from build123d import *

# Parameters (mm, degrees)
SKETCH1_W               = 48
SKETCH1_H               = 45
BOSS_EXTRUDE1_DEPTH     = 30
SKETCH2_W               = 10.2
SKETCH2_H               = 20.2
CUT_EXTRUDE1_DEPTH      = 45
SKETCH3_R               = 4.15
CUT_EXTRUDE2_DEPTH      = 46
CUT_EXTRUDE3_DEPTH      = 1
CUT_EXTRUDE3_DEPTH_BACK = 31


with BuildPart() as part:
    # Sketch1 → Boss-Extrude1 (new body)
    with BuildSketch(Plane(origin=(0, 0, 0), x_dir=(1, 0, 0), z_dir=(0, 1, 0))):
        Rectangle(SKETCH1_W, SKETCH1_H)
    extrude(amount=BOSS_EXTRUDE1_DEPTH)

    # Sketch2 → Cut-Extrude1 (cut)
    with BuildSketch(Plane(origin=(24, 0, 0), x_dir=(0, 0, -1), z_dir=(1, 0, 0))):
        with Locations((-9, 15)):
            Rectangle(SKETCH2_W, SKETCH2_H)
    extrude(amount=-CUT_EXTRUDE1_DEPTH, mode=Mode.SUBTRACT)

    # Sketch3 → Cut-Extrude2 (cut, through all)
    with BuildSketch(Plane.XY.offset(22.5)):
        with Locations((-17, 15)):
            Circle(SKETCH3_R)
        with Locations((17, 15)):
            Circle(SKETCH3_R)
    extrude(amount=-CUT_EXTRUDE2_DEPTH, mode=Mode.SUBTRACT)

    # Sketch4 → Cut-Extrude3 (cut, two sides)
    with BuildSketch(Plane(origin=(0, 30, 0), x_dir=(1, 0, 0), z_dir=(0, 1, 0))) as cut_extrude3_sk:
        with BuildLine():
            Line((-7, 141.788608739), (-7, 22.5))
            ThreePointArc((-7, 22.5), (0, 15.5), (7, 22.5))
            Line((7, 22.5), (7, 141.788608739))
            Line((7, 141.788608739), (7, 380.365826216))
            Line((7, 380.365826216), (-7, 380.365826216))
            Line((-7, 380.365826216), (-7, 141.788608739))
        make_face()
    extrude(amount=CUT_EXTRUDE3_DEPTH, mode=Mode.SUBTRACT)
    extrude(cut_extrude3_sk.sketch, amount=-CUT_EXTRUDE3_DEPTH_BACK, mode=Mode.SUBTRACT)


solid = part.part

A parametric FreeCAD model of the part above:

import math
import FreeCAD as App
import Part
import Sketcher


def add_polygon(sketch, points):
    """Adds a closed chain of lines whose ends are joined by coincident constraints."""
    first, n = sketch.GeometryCount, len(points)
    for a, b in zip(points, points[1:] + points[:1]):
        sketch.addGeometry(Part.LineSegment(App.Vector(*a, 0), App.Vector(*b, 0)), False)
    for i in range(n):
        sketch.addConstraint(Sketcher.Constraint("Coincident", first + i, 2, first + (i + 1) % n, 1))

doc = App.newDocument("Part")
params = doc.addObject("Spreadsheet::Sheet", "Params")
for row, (alias, value) in enumerate([
    ("sketch1_width", "48 mm"),
    ("sketch1_height", "45 mm"),
    ("pad1_length", "30 mm"),
    ("sketch2_width", "20.2 mm"),
    ("sketch2_height", "10.2 mm"),
    ("pocket1_length", "45 mm"),
    ("sketch3_diameter", "8.3 mm"),
    ("sketch4_radius", "7 mm"),
], start=1):
    params.set(f"A{row}", alias)
    params.set(f"B{row}", "=" + value)
    params.setAlias(f"B{row}", alias)

body = doc.addObject("PartDesign::Body", "Body")

sketch1 = body.newObject("Sketcher::SketchObject", "Sketch")
sketch1.AttachmentSupport = (doc.getObject("XZ_Plane"), [""])
sketch1.MapMode = "FlatFace"
add_polygon(sketch1, [(-24, -22), (-24, 22), (24, 22), (24, -22)])
sketch1.addConstraint([
    Sketcher.Constraint("Vertical", 0),
    Sketcher.Constraint("Horizontal", 1),
    Sketcher.Constraint("Vertical", 2),
    Sketcher.Constraint("Horizontal", 3),
    Sketcher.Constraint("Symmetric", 0, 2, 2, 2, -1, 1),
    Sketcher.Constraint("DistanceX", 1, 1, 1, 2, 48.0),
    Sketcher.Constraint("DistanceY", 0, 1, 0, 2, 45.0),
])
sketch1.setExpression("Constraints[9]", "Params.sketch1_width")
sketch1.setExpression("Constraints[10]", "Params.sketch1_height")
pad1 = body.newObject("PartDesign::Pad", "Pad")
pad1.Profile = sketch1
pad1.setExpression("Length", "Params.pad1_length")
pad1.Reversed = True

sketch2 = body.newObject("Sketcher::SketchObject", "Sketch001")
sketch2.AttachmentSupport = (doc.getObject("YZ_Plane"), [""])
sketch2.MapMode = "FlatFace"
sketch2.AttachmentOffset = App.Placement(App.Vector(0, 0, 24), App.Rotation())
add_polygon(sketch2, [(25, 14), (5, 14), (5, 4), (25, 4)])
sketch2.addConstraint([
    Sketcher.Constraint("Horizontal", 0),
    Sketcher.Constraint("Vertical", 1),
    Sketcher.Constraint("Horizontal", 2),
    Sketcher.Constraint("Vertical", 3),
    Sketcher.Constraint("DistanceX", 0, 2, 0, 1, 20.2),
    Sketcher.Constraint("DistanceY", 1, 2, 1, 1, 10.2),
    Sketcher.Constraint("DistanceX", -1, 1, 0, 2, 4.9),
    Sketcher.Constraint("DistanceY", -1, 1, 0, 2, 14.1),
])
sketch2.setExpression("Constraints[8]", "Params.sketch2_width")
sketch2.setExpression("Constraints[9]", "Params.sketch2_height")
pocket1 = body.newObject("PartDesign::Pocket", "Pocket")
pocket1.Profile = sketch2
pocket1.setExpression("Length", "Params.pocket1_length")

sketch3 = body.newObject("Sketcher::SketchObject", "Sketch002")
sketch3.AttachmentSupport = (doc.getObject("XY_Plane"), [""])
sketch3.MapMode = "FlatFace"
sketch3.AttachmentOffset = App.Placement(App.Vector(0, 0, 22.5), App.Rotation())
sketch3.addGeometry([
    Part.Circle(App.Vector(-17, 15, 0), App.Vector(0, 0, 1), 4.2),
    Part.Circle(App.Vector(17, 15, 0), App.Vector(0, 0, 1), 4.2),
], False)
sketch3.addConstraint([
    Sketcher.Constraint("Equal", 0, 1),
    Sketcher.Constraint("Symmetric", 0, 3, 1, 3, -2),
    Sketcher.Constraint("Diameter", 0, 8.3),
    Sketcher.Constraint("DistanceX", 0, 3, -1, 1, 17.0),
    Sketcher.Constraint("DistanceY", -1, 1, 0, 3, 15.0),
])
sketch3.setExpression("Constraints[2]", "Params.sketch3_diameter")
pocket2 = body.newObject("PartDesign::Pocket", "Pocket001")
pocket2.Profile = sketch3
pocket2.Type = "ThroughAll"

sketch4 = body.newObject("Sketcher::SketchObject", "Sketch003")
sketch4.AttachmentSupport = (doc.getObject("XZ_Plane"), [""])
sketch4.MapMode = "FlatFace"
sketch4.AttachmentOffset = App.Placement(App.Vector(0, 0, -30), App.Rotation())
sketch4.addGeometry([
    Part.ArcOfCircle(Part.Circle(App.Vector(0, -22, 0), App.Vector(0, 0, 1), 7), math.radians(0), math.radians(180)),
    Part.LineSegment(App.Vector(7, -22, 0), App.Vector(7, -380, 0)),
    Part.LineSegment(App.Vector(7, -380, 0), App.Vector(-7, -380, 0)),
    Part.LineSegment(App.Vector(-7, -380, 0), App.Vector(-7, -22, 0)),
], False)
sketch4.addConstraint([
    Sketcher.Constraint("Tangent", 0, 1, 1, 1),
    Sketcher.Constraint("Coincident", 1, 2, 2, 1),
    Sketcher.Constraint("Coincident", 2, 2, 3, 1),
    Sketcher.Constraint("Tangent", 3, 2, 0, 2),
    Sketcher.Constraint("Vertical", 1),
    Sketcher.Constraint("Horizontal", 2),
    Sketcher.Constraint("Vertical", 3),
    Sketcher.Constraint("PointOnObject", 0, 3, -2),
    Sketcher.Constraint("Radius", 0, 7.0),
    Sketcher.Constraint("DistanceY", 0, 3, -1, 1, 22.5),
    Sketcher.Constraint("DistanceY", 1, 2, 1, 1, 357.865826),
])
sketch4.setExpression("Constraints[8]", "Params.sketch4_radius")
pocket3 = body.newObject("PartDesign::Pocket", "Pocket002")
pocket3.Profile = sketch4
pocket3.Type = "ThroughAll"
pocket3.Midplane = True

doc.recompute()
